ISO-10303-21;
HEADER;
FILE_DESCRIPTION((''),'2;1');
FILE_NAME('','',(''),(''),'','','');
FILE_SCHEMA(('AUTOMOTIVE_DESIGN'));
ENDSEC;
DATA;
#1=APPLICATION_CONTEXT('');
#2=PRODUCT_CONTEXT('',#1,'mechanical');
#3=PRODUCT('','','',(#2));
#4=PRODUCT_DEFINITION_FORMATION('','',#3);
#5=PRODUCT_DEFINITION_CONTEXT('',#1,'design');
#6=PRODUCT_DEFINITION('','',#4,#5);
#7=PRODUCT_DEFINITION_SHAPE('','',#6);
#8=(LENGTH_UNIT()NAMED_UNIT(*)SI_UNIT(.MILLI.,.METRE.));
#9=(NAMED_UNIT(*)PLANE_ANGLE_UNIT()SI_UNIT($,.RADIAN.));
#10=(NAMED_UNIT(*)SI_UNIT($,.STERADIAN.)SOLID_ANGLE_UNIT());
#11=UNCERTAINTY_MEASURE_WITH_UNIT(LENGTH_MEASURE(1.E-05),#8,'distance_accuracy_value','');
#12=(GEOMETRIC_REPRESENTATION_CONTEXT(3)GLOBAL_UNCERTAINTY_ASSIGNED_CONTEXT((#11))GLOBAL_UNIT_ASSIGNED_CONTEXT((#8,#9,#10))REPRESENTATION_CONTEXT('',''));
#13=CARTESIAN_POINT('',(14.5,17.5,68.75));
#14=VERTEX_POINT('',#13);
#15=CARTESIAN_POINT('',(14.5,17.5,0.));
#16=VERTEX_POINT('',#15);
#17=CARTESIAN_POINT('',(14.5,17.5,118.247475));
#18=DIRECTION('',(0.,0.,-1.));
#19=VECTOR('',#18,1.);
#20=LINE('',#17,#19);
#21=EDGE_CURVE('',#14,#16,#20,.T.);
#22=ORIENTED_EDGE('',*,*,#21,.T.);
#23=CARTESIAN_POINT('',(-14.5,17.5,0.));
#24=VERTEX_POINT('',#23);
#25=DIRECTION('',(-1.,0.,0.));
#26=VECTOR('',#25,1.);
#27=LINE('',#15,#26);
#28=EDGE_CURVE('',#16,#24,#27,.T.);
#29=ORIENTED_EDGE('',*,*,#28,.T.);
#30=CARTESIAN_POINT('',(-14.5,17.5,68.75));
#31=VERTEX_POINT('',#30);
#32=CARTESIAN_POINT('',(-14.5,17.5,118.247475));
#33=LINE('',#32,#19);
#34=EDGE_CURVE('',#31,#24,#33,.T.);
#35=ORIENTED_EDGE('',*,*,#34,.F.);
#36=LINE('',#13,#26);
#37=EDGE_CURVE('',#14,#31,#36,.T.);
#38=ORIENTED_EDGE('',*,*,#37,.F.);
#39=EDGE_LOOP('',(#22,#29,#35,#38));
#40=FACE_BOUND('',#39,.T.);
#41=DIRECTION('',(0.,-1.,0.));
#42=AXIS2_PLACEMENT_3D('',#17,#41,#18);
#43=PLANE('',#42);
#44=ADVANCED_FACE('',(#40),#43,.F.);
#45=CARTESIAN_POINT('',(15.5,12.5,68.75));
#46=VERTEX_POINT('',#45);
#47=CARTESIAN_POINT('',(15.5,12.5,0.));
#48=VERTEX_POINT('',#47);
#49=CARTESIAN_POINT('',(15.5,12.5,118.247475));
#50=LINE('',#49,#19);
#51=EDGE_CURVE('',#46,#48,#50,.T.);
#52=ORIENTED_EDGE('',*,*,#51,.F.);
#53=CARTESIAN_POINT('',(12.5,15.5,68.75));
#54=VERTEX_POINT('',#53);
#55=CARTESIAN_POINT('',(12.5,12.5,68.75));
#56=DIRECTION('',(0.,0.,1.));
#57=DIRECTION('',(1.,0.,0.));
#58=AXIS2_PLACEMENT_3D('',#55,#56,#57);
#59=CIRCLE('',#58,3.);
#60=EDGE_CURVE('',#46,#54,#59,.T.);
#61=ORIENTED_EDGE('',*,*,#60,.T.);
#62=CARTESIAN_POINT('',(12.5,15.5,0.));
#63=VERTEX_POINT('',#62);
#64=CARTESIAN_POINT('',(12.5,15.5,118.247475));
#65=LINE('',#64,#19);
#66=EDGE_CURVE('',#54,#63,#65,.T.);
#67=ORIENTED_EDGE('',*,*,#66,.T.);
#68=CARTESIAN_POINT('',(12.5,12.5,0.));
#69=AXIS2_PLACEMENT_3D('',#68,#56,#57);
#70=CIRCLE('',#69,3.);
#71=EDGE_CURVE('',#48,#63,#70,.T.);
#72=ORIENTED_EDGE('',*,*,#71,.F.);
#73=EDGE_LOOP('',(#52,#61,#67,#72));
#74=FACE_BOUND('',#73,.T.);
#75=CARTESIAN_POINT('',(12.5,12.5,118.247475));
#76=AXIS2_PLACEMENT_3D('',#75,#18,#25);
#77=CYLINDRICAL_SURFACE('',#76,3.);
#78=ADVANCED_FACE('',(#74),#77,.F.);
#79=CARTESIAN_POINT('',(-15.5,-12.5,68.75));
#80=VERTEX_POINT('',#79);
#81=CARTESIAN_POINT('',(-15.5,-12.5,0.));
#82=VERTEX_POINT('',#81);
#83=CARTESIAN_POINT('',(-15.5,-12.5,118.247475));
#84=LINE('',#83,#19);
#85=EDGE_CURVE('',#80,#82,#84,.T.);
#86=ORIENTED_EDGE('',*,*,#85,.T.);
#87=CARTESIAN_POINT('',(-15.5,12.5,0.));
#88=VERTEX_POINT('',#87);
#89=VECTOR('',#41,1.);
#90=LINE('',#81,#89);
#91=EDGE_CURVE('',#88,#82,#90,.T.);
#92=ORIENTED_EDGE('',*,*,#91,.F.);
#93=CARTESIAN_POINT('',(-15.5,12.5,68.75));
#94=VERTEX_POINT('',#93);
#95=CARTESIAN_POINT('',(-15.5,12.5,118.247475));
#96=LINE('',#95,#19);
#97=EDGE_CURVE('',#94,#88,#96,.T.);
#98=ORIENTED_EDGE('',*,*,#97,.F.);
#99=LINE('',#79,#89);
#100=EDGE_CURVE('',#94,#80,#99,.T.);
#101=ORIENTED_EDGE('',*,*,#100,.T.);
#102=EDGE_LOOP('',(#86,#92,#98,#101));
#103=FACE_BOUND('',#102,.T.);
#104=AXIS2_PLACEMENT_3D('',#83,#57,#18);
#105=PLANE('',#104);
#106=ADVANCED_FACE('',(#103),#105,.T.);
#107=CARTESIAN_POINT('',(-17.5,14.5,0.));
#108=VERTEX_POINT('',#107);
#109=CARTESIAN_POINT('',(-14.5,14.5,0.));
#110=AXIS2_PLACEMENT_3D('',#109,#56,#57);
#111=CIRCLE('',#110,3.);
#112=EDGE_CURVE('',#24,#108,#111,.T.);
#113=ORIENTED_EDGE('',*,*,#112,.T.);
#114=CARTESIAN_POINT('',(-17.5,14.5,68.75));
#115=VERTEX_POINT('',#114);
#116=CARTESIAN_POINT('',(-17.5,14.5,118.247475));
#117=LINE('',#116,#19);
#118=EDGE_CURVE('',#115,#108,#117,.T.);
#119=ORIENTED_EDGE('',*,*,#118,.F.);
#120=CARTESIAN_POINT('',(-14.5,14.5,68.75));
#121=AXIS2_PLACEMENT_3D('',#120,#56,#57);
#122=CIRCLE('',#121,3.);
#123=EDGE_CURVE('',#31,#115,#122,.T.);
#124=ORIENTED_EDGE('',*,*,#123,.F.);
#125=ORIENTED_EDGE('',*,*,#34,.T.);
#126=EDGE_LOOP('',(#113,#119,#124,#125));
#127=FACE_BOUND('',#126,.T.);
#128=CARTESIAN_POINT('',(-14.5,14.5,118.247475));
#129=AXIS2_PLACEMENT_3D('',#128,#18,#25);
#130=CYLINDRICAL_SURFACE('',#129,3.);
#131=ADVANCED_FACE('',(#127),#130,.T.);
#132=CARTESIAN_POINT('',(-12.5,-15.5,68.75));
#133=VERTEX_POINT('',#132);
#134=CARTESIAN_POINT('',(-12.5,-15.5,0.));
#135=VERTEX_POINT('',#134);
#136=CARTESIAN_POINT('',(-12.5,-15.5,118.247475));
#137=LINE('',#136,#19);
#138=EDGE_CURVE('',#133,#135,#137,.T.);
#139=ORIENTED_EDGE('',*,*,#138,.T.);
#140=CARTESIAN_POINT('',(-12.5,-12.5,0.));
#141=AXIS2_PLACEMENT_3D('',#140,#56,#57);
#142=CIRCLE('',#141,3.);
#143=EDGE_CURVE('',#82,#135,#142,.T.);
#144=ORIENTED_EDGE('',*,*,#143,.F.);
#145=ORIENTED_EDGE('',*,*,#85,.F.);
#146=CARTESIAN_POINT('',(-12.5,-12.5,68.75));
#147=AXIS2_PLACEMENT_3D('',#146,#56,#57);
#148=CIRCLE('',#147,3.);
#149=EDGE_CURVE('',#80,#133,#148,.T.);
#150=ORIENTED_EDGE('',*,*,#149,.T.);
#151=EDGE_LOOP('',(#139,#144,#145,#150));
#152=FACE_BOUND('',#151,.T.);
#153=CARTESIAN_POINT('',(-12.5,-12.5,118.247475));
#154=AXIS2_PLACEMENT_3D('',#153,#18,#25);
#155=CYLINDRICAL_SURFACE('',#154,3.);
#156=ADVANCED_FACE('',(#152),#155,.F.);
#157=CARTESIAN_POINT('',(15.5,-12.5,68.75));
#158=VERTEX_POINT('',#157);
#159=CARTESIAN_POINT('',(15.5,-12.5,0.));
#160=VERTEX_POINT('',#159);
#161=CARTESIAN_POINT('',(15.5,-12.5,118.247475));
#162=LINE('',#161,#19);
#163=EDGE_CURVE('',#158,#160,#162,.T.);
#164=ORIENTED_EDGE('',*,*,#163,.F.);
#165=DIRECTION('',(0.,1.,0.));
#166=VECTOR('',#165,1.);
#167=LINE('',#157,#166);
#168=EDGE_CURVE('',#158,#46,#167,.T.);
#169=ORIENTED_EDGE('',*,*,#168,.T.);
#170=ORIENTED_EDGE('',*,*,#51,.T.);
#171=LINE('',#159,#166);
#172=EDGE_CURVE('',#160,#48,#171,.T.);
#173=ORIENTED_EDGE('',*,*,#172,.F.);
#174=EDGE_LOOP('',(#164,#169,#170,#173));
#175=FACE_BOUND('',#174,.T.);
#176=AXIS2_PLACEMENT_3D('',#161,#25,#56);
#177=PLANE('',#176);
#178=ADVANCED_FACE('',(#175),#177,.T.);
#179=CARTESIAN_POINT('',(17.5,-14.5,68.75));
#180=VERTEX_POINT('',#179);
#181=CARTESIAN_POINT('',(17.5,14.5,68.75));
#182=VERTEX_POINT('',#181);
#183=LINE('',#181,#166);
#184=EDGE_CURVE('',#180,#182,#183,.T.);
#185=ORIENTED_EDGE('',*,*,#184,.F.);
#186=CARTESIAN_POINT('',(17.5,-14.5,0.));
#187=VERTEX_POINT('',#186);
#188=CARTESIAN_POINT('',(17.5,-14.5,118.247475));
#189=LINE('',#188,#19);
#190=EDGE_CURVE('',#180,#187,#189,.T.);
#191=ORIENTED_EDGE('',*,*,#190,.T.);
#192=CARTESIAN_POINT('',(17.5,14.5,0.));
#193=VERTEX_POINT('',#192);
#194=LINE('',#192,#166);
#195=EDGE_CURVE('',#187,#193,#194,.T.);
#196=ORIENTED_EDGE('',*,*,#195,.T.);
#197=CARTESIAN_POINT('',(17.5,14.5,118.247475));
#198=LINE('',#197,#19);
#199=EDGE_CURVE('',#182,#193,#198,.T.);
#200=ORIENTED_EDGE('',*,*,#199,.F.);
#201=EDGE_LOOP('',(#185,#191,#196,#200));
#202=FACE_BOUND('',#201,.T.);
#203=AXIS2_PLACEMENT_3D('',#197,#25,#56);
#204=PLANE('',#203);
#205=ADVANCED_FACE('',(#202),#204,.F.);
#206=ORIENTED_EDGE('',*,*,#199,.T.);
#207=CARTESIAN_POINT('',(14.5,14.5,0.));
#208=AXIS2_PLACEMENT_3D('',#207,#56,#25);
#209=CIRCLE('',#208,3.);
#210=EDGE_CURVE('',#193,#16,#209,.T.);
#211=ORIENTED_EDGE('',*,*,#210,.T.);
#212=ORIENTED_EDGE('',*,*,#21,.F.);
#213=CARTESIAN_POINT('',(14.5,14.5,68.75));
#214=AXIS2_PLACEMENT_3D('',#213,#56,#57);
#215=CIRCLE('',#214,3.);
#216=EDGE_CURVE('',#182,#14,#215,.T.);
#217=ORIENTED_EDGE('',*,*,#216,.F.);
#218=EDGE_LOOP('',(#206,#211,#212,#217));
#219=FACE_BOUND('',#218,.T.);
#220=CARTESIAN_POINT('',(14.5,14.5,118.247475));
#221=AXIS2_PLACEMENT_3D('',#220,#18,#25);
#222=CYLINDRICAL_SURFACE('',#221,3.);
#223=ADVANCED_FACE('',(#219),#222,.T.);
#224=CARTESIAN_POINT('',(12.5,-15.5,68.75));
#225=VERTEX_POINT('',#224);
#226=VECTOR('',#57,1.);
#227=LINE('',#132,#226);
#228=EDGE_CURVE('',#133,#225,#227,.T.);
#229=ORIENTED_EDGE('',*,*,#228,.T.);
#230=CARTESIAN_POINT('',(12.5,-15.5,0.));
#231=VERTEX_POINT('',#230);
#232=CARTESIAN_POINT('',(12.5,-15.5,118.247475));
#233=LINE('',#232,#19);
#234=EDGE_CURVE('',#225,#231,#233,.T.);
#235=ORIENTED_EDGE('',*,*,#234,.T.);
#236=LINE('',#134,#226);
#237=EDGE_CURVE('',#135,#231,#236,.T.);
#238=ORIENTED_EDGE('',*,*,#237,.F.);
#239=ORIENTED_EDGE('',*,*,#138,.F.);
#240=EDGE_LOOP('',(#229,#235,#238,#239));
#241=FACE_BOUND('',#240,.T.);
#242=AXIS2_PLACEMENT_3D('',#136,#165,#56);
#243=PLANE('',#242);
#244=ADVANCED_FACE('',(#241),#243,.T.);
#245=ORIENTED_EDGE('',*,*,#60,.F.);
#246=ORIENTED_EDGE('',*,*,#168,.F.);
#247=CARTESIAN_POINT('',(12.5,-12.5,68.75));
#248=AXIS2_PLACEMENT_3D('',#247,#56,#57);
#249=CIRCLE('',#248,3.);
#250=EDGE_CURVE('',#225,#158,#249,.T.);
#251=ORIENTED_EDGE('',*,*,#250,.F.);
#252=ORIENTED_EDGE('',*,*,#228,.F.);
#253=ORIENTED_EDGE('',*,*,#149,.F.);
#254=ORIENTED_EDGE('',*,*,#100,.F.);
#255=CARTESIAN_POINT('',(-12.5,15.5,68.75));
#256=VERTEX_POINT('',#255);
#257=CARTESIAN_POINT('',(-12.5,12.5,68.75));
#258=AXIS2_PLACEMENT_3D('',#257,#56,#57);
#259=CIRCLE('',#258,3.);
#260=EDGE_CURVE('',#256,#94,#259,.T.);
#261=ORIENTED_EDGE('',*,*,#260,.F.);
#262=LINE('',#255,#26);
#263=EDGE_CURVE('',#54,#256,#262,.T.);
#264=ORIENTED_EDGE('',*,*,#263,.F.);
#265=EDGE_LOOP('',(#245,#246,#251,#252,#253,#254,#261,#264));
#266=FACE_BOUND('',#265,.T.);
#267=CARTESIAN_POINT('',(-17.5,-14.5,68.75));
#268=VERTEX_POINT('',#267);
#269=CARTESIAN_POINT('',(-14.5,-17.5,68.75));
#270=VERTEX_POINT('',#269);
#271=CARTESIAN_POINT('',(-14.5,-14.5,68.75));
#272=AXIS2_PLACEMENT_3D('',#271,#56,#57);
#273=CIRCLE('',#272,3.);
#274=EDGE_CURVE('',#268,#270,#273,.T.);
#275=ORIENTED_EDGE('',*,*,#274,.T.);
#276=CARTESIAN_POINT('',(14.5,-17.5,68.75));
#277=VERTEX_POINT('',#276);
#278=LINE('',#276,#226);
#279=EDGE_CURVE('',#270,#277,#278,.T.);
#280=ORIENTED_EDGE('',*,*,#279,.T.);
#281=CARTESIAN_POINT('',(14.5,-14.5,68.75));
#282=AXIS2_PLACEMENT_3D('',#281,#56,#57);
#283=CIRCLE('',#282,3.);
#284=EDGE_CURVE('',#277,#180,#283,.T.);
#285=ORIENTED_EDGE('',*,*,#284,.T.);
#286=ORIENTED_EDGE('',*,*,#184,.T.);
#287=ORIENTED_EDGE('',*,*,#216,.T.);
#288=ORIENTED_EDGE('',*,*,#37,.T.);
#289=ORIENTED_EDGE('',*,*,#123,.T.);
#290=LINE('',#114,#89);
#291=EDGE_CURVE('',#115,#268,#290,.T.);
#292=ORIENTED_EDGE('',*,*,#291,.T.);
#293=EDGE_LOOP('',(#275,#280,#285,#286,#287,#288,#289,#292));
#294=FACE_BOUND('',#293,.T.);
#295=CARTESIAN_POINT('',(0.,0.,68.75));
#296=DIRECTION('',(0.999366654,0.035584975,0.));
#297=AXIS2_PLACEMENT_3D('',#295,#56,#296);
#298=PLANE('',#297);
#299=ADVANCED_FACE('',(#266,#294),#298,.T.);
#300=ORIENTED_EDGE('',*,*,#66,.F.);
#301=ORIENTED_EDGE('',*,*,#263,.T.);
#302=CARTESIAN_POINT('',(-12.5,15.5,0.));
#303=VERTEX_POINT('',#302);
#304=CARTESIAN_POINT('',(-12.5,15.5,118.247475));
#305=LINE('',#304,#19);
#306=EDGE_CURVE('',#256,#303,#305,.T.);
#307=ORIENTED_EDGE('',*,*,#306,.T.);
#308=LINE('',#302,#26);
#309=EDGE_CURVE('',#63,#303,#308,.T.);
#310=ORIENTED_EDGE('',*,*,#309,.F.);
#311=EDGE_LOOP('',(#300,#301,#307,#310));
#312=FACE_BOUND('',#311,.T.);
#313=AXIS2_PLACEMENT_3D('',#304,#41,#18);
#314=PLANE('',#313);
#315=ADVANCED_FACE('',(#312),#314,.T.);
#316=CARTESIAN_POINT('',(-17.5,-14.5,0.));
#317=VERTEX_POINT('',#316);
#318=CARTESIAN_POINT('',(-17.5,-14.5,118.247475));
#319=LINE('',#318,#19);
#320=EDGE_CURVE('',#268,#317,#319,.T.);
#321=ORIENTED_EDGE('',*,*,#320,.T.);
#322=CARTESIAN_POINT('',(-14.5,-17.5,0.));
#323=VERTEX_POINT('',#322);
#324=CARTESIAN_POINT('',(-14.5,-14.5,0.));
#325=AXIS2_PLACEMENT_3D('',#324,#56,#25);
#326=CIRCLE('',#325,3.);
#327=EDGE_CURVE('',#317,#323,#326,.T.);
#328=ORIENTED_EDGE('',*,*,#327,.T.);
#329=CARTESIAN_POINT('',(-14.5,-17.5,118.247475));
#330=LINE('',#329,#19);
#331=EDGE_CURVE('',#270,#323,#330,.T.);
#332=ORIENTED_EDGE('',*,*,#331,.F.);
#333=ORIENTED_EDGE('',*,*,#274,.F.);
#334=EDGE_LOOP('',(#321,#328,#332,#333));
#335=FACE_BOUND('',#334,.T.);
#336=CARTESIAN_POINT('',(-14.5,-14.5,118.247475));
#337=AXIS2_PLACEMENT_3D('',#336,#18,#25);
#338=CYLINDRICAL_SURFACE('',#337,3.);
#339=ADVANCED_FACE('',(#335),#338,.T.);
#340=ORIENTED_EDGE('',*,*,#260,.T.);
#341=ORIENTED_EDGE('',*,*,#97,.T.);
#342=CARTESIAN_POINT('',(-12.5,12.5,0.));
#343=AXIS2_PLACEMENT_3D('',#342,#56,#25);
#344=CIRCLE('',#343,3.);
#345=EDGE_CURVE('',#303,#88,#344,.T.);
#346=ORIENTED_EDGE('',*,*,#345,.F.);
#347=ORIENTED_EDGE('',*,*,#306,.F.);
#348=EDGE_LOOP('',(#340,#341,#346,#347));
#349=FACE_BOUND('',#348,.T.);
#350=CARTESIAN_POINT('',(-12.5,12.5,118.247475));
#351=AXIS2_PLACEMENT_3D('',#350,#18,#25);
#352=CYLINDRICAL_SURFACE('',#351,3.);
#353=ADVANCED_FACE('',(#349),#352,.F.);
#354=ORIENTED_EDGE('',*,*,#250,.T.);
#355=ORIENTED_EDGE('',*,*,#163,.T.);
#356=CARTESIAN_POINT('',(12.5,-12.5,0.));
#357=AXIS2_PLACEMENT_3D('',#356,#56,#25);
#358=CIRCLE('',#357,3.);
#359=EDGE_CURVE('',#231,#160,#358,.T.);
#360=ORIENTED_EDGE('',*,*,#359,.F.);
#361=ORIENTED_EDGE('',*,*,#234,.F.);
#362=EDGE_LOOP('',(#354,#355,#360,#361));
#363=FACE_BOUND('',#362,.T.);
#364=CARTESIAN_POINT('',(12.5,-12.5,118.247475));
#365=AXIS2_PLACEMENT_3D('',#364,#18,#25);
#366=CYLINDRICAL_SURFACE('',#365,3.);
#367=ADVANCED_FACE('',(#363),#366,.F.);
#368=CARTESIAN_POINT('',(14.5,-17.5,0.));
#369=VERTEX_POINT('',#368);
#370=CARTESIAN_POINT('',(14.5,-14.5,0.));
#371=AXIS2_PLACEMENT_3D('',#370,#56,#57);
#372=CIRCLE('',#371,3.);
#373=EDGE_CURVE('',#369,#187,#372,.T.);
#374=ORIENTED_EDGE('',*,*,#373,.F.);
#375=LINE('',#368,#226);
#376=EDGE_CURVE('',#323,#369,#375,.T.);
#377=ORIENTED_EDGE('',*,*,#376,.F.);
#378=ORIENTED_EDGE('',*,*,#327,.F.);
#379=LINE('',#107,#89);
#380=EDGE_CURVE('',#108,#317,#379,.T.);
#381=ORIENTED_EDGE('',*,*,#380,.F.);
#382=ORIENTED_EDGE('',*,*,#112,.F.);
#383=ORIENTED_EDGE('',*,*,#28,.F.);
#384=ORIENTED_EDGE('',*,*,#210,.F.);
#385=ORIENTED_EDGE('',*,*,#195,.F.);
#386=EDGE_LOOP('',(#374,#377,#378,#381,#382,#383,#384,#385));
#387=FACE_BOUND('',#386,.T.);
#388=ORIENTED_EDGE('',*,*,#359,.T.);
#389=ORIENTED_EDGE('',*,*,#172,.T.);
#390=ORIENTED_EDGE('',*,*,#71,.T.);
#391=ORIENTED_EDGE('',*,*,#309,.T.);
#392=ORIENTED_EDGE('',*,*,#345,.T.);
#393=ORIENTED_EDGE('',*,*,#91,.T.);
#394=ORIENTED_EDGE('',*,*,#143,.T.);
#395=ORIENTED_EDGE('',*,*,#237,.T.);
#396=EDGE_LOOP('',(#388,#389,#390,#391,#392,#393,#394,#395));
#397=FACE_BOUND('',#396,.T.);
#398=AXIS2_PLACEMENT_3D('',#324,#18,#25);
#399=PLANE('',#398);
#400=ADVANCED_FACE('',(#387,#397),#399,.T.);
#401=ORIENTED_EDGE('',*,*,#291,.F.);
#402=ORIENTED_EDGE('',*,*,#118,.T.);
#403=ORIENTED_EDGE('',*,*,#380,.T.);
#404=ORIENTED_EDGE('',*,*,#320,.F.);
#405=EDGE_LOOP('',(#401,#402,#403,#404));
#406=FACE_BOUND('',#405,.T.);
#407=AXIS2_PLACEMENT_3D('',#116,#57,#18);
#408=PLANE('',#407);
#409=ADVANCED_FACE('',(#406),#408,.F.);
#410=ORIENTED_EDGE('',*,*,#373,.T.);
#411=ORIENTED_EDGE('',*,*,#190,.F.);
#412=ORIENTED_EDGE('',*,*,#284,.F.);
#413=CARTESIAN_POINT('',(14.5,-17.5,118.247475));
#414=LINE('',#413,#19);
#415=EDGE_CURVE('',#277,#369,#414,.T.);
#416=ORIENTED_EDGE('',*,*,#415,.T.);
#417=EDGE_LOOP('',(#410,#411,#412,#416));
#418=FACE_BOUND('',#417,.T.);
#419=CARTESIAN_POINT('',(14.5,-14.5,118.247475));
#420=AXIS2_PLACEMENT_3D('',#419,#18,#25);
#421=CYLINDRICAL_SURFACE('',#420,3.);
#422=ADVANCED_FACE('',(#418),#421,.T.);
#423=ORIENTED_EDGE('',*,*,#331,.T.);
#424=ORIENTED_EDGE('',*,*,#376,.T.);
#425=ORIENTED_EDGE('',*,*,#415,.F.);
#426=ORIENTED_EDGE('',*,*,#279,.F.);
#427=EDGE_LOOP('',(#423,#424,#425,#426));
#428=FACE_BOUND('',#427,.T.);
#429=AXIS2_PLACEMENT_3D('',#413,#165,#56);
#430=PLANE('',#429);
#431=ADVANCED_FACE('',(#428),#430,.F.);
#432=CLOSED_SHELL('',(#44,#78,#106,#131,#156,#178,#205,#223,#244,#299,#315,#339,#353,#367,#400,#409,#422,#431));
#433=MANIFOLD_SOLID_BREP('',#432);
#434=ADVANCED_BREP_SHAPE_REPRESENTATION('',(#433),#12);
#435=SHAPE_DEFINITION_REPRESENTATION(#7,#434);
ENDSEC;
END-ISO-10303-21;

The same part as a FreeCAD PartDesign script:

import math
import FreeCAD as App
import Part
import Sketcher
from FreeCAD import Vector

doc = App.newDocument("Part")
body = doc.addObject("PartDesign::Body", "Body")

sketch1 = body.newObject("Sketcher::SketchObject", "Sketch")
sketch1.AttachmentSupport = (doc.getObject("XY_Plane"), [""])
sketch1.MapMode = "FlatFace"
sketch1.addGeometry(Part.LineSegment(Vector(14.5, 17.5, 0), Vector(-14.5, 17.5, 0)), False)
sketch1.addGeometry(Part.ArcOfCircle(Part.Circle(Vector(-14.5, 14.5, 0), Vector(0, 0, 1), 3), math.radians(90), math.radians(180)), False)
sketch1.addGeometry(Part.LineSegment(Vector(-17.5, 14.5, 0), Vector(-17.5, -14.5, 0)), False)
sketch1.addGeometry(Part.ArcOfCircle(Part.Circle(Vector(-14.5, -14.5, 0), Vector(0, 0, 1), 3), math.radians(180), math.radians(270)), False)
sketch1.addGeometry(Part.LineSegment(Vector(-14.5, -17.5, 0), Vector(14.5, -17.5, 0)), False)
sketch1.addGeometry(Part.ArcOfCircle(Part.Circle(Vector(14.5, -14.5, 0), Vector(0, 0, 1), 3), math.radians(-90), math.radians(0)), False)
sketch1.addGeometry(Part.LineSegment(Vector(17.5, -14.5, 0), Vector(17.5, 14.5, 0)), False)
sketch1.addGeometry(Part.ArcOfCircle(Part.Circle(Vector(14.5, 14.5, 0), Vector(0, 0, 1), 3), math.radians(0), math.radians(90)), False)
sketch1.addGeometry(Part.ArcOfCircle(Part.Circle(Vector(-12.5, -12.5, 0), Vector(0, 0, 1), 3), math.radians(180), math.radians(270)), False)
sketch1.addGeometry(Part.LineSegment(Vector(-15.5, -12.5, 0), Vector(-15.5, 12.5, 0)), False)
sketch1.addGeometry(Part.ArcOfCircle(Part.Circle(Vector(-12.5, 12.5, 0), Vector(0, 0, 1), 3), math.radians(90), math.radians(180)), False)
sketch1.addGeometry(Part.LineSegment(Vector(-12.5, 15.5, 0), Vector(12.5, 15.5, 0)), False)
sketch1.addGeometry(Part.ArcOfCircle(Part.Circle(Vector(12.5, 12.5, 0), Vector(0, 0, 1), 3), math.radians(0), math.radians(90)), False)
sketch1.addGeometry(Part.LineSegment(Vector(15.5, 12.5, 0), Vector(15.5, -12.5, 0)), False)
sketch1.addGeometry(Part.ArcOfCircle(Part.Circle(Vector(12.5, -12.5, 0), Vector(0, 0, 1), 3), math.radians(-90), math.radians(0)), False)
sketch1.addGeometry(Part.LineSegment(Vector(12.5, -15.5, 0), Vector(-12.5, -15.5, 0)), False)
sketch1.addConstraint(Sketcher.Constraint("Tangent", 0, 2, 1, 1))
sketch1.addConstraint(Sketcher.Constraint("Tangent", 1, 2, 2, 1))
sketch1.addConstraint(Sketcher.Constraint("Tangent", 2, 2, 3, 1))
sketch1.addConstraint(Sketcher.Constraint("Tangent", 3, 2, 4, 1))
sketch1.addConstraint(Sketcher.Constraint("Tangent", 4, 2, 5, 1))
sketch1.addConstraint(Sketcher.Constraint("Tangent", 5, 2, 6, 1))
sketch1.addConstraint(Sketcher.Constraint("Tangent", 6, 2, 7, 1))
sketch1.addConstraint(Sketcher.Constraint("Tangent", 7, 2, 0, 1))
sketch1.addConstraint(Sketcher.Constraint("Tangent", 8, 1, 9, 1))
sketch1.addConstraint(Sketcher.Constraint("Tangent", 9, 2, 10, 2))
sketch1.addConstraint(Sketcher.Constraint("Tangent", 10, 1, 11, 1))
sketch1.addConstraint(Sketcher.Constraint("Tangent", 11, 2, 12, 2))
sketch1.addConstraint(Sketcher.Constraint("Tangent", 12, 1, 13, 1))
sketch1.addConstraint(Sketcher.Constraint("Tangent", 13, 2, 14, 2))
sketch1.addConstraint(Sketcher.Constraint("Tangent", 14, 1, 15, 1))
sketch1.addConstraint(Sketcher.Constraint("Tangent", 15, 2, 8, 2))
sketch1.addConstraint(Sketcher.Constraint("Horizontal", 0))
sketch1.addConstraint(Sketcher.Constraint("Vertical", 2))
sketch1.addConstraint(Sketcher.Constraint("Horizontal", 4))
sketch1.addConstraint(Sketcher.Constraint("Vertical", 6))
sketch1.addConstraint(Sketcher.Constraint("Vertical", 9))
sketch1.addConstraint(Sketcher.Constraint("Horizontal", 11))
sketch1.addConstraint(Sketcher.Constraint("Vertical", 13))
sketch1.addConstraint(Sketcher.Constraint("Horizontal", 15))
sketch1.addConstraint(Sketcher.Constraint("Equal", 1, 3))
sketch1.addConstraint(Sketcher.Constraint("Equal", 3, 5))
sketch1.addConstraint(Sketcher.Constraint("Equal", 5, 7))
sketch1.addConstraint(Sketcher.Constraint("Equal", 7, 8))
sketch1.addConstraint(Sketcher.Constraint("Equal", 8, 10))
sketch1.addConstraint(Sketcher.Constraint("Equal", 10, 12))
sketch1.addConstraint(Sketcher.Constraint("Equal", 12, 14))
sketch1.addConstraint(Sketcher.Constraint("Symmetric", 1, 3, 5, 3, -1, 1))
sketch1.addConstraint(Sketcher.Constraint("Symmetric", 8, 3, 12, 3, -1, 1))
sketch1.addConstraint(Sketcher.Constraint("Equal", 4, 2))
sketch1.addConstraint(Sketcher.Constraint("Equal", 15, 9))
sketch1.addConstraint(Sketcher.Constraint("Radius", 1, 3.0))
sketch1.addConstraint(Sketcher.Constraint("DistanceX", 0, 2, 0, 1, 29.0))
sketch1.addConstraint(Sketcher.Constraint("DistanceX", 11, 1, 11, 2, 25.0))
pad1 = body.newObject("PartDesign::Pad", "Pad")
pad1.Profile = sketch1
pad1.Length = 68.75

doc.recompute()
